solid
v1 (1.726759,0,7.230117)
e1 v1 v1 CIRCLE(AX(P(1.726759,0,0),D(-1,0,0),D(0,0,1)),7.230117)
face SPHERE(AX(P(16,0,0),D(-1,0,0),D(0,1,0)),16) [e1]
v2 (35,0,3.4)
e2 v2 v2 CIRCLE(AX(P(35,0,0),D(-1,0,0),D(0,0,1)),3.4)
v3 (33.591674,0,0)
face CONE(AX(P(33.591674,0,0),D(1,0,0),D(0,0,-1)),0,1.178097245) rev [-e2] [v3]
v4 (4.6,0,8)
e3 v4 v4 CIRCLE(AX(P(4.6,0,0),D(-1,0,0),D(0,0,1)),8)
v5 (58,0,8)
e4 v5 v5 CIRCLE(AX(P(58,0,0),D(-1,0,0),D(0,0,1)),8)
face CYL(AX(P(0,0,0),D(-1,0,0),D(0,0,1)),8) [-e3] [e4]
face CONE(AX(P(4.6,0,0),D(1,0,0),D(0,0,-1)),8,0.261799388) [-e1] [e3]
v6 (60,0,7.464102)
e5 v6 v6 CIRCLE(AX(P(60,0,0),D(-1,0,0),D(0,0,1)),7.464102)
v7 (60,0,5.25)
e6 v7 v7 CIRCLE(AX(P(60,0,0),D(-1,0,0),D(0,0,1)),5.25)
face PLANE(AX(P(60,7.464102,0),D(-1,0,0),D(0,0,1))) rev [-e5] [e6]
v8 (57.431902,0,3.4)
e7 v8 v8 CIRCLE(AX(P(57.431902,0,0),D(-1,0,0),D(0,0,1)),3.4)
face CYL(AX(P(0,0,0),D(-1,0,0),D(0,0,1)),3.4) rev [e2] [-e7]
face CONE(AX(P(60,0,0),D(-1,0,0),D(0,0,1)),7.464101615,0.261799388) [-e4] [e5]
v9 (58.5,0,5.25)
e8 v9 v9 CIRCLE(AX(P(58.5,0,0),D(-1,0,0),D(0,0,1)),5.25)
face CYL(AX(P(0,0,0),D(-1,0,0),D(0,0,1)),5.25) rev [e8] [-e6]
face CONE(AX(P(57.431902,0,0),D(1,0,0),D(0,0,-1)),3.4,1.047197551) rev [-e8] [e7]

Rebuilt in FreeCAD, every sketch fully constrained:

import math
import FreeCAD as App
import Part
import Sketcher
Q = App.Units.Quantity

doc = App.newDocument("Part")
body = doc.addObject("PartDesign::Body", "Body")

# Sketch on XY plane
sketch1 = doc.addObject("Sketcher::SketchObject", "Sketch")
body.addObject(sketch1)
sketch1.AttachmentSupport = (doc.XY_Plane, [""])
sketch1.MapMode = "FlatFace"
sketch1.addGeometry([
    Part.LineSegment(App.Vector(58, 8, 0), App.Vector(4.6, 8, 0)),  # 0
    Part.LineSegment(App.Vector(4.6, 8, 0), App.Vector(1.7, 7.2, 0)),  # 1
    Part.ArcOfCircle(Part.Circle(App.Vector(16, 0, 0), App.Vector(0, 0, 1), 16), math.radians(153), math.radians(180)),  # 2
    Part.LineSegment(App.Vector(0, 0, 0), App.Vector(33.6, 0, 0)),  # 3
    Part.LineSegment(App.Vector(33.6, 0, 0), App.Vector(35, 3.4, 0)),  # 4
    Part.LineSegment(App.Vector(35, 3.4, 0), App.Vector(57.4, 3.4, 0)),  # 5
    Part.LineSegment(App.Vector(57.4, 3.4, 0), App.Vector(58.5, 5.2, 0)),  # 6
    Part.LineSegment(App.Vector(58.5, 5.2, 0), App.Vector(60, 5.2, 0)),  # 7
    Part.LineSegment(App.Vector(60, 5.2, 0), App.Vector(60, 7.5, 0)),  # 8
    Part.LineSegment(App.Vector(60, 7.5, 0), App.Vector(58, 8, 0)),  # 9
], False)
sketch1.addConstraint([
    Sketcher.Constraint("Coincident", 0, 2, 1, 1),
    Sketcher.Constraint("Coincident", 1, 2, 2, 1),
    Sketcher.Constraint("Coincident", 2, 2, 3, 1),
    Sketcher.Constraint("Coincident", 3, 2, 4, 1),
    Sketcher.Constraint("Coincident", 4, 2, 5, 1),
    Sketcher.Constraint("Coincident", 5, 2, 6, 1),
    Sketcher.Constraint("Coincident", 6, 2, 7, 1),
    Sketcher.Constraint("Coincident", 7, 2, 8, 1),
    Sketcher.Constraint("Coincident", 8, 2, 9, 1),
    Sketcher.Constraint("Coincident", 9, 2, 0, 1),
    Sketcher.Constraint("Horizontal", 0),
    Sketcher.Constraint("Horizontal", 3),
    Sketcher.Constraint("Horizontal", 5),
    Sketcher.Constraint("Horizontal", 7),
    Sketcher.Constraint("Vertical", 8),
    Sketcher.Constraint("Coincident", 2, 2, -1, 1),
    Sketcher.Constraint("PointOnObject", 2, 3, -1),
    Sketcher.Constraint("Radius", 2, Q("16 mm")),
    Sketcher.Constraint("Angle", 1, Q("-165 deg")),
    Sketcher.Constraint("Angle", 6, Q("60 deg")),
    Sketcher.Constraint("Angle", 9, Q("165 deg")),
    Sketcher.Constraint("DistanceX", 0, 2, 0, 1, Q("53.4 mm")),
    Sketcher.Constraint("DistanceX", 7, 1, 7, 2, Q("1.5 mm")),
    Sketcher.Constraint("DistanceY", -1, 1, 0, 2, Q("8 mm")),
    Sketcher.Constraint("DistanceX", -1, 1, 4, 2, Q("35 mm")),
    Sketcher.Constraint("DistanceX", -1, 1, 7, 2, Q("60 mm")),
    Sketcher.Constraint("DistanceX", -1, 1, 9, 2, Q("58 mm")),
    Sketcher.Constraint("Angle", 4, Q("67.5 deg")),
    Sketcher.Constraint("DistanceY", -1, 1, 4, 2, Q("3.4 mm")),
    Sketcher.Constraint("DistanceY", -1, 1, 6, 2, Q("5.25 mm")),
])
revolution = doc.addObject("PartDesign::Revolution", "Revolution")
body.addObject(revolution)
revolution.Profile = sketch1
revolution.ReferenceAxis = (sketch1, ["H_Axis"])
revolution.Angle = 360

doc.recompute()
